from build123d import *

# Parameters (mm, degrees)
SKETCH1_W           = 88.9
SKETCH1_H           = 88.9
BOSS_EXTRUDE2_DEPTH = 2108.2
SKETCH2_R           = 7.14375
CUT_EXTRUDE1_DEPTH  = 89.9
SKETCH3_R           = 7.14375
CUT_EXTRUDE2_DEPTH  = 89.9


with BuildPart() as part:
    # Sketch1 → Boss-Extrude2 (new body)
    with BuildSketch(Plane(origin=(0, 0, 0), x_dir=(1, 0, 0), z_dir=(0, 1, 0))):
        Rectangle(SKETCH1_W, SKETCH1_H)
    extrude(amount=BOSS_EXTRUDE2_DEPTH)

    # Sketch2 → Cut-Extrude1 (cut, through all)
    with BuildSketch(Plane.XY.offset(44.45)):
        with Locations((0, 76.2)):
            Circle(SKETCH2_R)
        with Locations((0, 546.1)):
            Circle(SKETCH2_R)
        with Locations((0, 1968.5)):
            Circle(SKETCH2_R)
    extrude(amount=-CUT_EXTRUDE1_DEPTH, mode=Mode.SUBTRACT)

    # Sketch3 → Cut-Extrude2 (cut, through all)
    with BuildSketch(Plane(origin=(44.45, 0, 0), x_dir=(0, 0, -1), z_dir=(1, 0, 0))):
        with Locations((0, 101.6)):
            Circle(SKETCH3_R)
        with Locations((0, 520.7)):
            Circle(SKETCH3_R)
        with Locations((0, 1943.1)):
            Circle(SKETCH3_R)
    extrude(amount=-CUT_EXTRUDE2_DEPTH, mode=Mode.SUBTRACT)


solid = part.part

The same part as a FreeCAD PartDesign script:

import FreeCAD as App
import Part
import Sketcher

V = App.Vector
Q = App.Units.Quantity


def add_polygon(sketch, points):
    """Adds a closed chain of lines whose ends are joined by coincident constraints."""
    first, n = sketch.GeometryCount, len(points)
    for a, b in zip(points, points[1:] + points[:1]):
        sketch.addGeometry(Part.LineSegment(App.Vector(*a, 0), App.Vector(*b, 0)), False)
    for i in range(n):
        sketch.addConstraint(Sketcher.Constraint("Coincident", first + i, 2, first + (i + 1) % n, 1))

doc = App.newDocument("Part")
body = doc.addObject("PartDesign::Body", "Body")

sketch1 = body.newObject("Sketcher::SketchObject", "Sketch")
sketch1.AttachmentSupport = (doc.getObject("XZ_Plane"), [""])
sketch1.MapMode = "FlatFace"
add_polygon(sketch1, [(-44, -44), (-44, 44), (44, 44), (44, -44)])
sketch1.addConstraint(Sketcher.Constraint("Vertical", 0))
sketch1.addConstraint(Sketcher.Constraint("Horizontal", 1))
sketch1.addConstraint(Sketcher.Constraint("Vertical", 2))
sketch1.addConstraint(Sketcher.Constraint("Horizontal", 3))
sketch1.addConstraint(Sketcher.Constraint("Symmetric", 0, 2, 2, 2, -1, 1))
sketch1.addConstraint(Sketcher.Constraint("Equal", 3, 0))
sketch1.addConstraint(Sketcher.Constraint("DistanceX", 1, 1, 1, 2, Q("3.5 in")))
pad1 = body.newObject("PartDesign::Pad", "Pad")
pad1.Profile = sketch1
pad1.Length = Q("83 in")
pad1.Reversed = True

sketch2 = body.newObject("Sketcher::SketchObject", "Sketch001")
sketch2.AttachmentSupport = (doc.getObject("XY_Plane"), [""])
sketch2.MapMode = "FlatFace"
sketch2.AttachmentOffset = App.Placement(V(0, 0, 1.75 * 25.4), App.Rotation())
sketch2.addGeometry(Part.Circle(V(0, 76, 0), V(0, 0, 1), 7), False)
sketch2.addGeometry(Part.Circle(V(0, 546, 0), V(0, 0, 1), 7), False)
sketch2.addGeometry(Part.Circle(V(0, 1968, 0), V(0, 0, 1), 7), False)
sketch2.addConstraint(Sketcher.Constraint("Equal", 0, 1))
sketch2.addConstraint(Sketcher.Constraint("Equal", 1, 2))
sketch2.addConstraint(Sketcher.Constraint("PointOnObject", 0, 3, -2))
sketch2.addConstraint(Sketcher.Constraint("PointOnObject", 1, 3, -2))
sketch2.addConstraint(Sketcher.Constraint("PointOnObject", 2, 3, -2))
sketch2.addConstraint(Sketcher.Constraint("Diameter", 0, Q("0.5625 in")))
sketch2.addConstraint(Sketcher.Constraint("DistanceY", -1, 1, 0, 3, Q("3 in")))
sketch2.addConstraint(Sketcher.Constraint("DistanceY", 1, 3, 2, 3, Q("56 in")))
sketch2.addConstraint(Sketcher.Constraint("DistanceY", -1, 1, 1, 3, Q("21.5 in")))
pocket1 = body.newObject("PartDesign::Pocket", "Pocket")
pocket1.Profile = sketch2
pocket1.Type = "ThroughAll"

sketch3 = body.newObject("Sketcher::SketchObject", "Sketch002")
sketch3.AttachmentSupport = (doc.getObject("YZ_Plane"), [""])
sketch3.MapMode = "FlatFace"
sketch3.AttachmentOffset = App.Placement(V(0, 0, 1.75 * 25.4), App.Rotation())
sketch3.addGeometry(Part.Circle(V(102, 0, 0), V(0, 0, 1), 7), False)
sketch3.addGeometry(Part.Circle(V(521, 0, 0), V(0, 0, 1), 7), False)
sketch3.addGeometry(Part.Circle(V(1943, 0, 0), V(0, 0, 1), 7), False)
sketch3.addConstraint(Sketcher.Constraint("Equal", 0, 1))
sketch3.addConstraint(Sketcher.Constraint("Equal", 1, 2))
sketch3.addConstraint(Sketcher.Constraint("PointOnObject", 0, 3, -1))
sketch3.addConstraint(Sketcher.Constraint("PointOnObject", 1, 3, -1))
sketch3.addConstraint(Sketcher.Constraint("PointOnObject", 2, 3, -1))
sketch3.addConstraint(Sketcher.Constraint("Diameter", 0, Q("0.5625 in")))
sketch3.addConstraint(Sketcher.Constraint("DistanceX", -1, 1, 0, 3, Q("4 in")))
sketch3.addConstraint(Sketcher.Constraint("DistanceX", 1, 3, 2, 3, Q("56 in")))
sketch3.addConstraint(Sketcher.Constraint("DistanceX", -1, 1, 1, 3, Q("20.5 in")))
pocket2 = body.newObject("PartDesign::Pocket", "Pocket001")
pocket2.Profile = sketch3
pocket2.Type = "ThroughAll"

doc.recompute()
